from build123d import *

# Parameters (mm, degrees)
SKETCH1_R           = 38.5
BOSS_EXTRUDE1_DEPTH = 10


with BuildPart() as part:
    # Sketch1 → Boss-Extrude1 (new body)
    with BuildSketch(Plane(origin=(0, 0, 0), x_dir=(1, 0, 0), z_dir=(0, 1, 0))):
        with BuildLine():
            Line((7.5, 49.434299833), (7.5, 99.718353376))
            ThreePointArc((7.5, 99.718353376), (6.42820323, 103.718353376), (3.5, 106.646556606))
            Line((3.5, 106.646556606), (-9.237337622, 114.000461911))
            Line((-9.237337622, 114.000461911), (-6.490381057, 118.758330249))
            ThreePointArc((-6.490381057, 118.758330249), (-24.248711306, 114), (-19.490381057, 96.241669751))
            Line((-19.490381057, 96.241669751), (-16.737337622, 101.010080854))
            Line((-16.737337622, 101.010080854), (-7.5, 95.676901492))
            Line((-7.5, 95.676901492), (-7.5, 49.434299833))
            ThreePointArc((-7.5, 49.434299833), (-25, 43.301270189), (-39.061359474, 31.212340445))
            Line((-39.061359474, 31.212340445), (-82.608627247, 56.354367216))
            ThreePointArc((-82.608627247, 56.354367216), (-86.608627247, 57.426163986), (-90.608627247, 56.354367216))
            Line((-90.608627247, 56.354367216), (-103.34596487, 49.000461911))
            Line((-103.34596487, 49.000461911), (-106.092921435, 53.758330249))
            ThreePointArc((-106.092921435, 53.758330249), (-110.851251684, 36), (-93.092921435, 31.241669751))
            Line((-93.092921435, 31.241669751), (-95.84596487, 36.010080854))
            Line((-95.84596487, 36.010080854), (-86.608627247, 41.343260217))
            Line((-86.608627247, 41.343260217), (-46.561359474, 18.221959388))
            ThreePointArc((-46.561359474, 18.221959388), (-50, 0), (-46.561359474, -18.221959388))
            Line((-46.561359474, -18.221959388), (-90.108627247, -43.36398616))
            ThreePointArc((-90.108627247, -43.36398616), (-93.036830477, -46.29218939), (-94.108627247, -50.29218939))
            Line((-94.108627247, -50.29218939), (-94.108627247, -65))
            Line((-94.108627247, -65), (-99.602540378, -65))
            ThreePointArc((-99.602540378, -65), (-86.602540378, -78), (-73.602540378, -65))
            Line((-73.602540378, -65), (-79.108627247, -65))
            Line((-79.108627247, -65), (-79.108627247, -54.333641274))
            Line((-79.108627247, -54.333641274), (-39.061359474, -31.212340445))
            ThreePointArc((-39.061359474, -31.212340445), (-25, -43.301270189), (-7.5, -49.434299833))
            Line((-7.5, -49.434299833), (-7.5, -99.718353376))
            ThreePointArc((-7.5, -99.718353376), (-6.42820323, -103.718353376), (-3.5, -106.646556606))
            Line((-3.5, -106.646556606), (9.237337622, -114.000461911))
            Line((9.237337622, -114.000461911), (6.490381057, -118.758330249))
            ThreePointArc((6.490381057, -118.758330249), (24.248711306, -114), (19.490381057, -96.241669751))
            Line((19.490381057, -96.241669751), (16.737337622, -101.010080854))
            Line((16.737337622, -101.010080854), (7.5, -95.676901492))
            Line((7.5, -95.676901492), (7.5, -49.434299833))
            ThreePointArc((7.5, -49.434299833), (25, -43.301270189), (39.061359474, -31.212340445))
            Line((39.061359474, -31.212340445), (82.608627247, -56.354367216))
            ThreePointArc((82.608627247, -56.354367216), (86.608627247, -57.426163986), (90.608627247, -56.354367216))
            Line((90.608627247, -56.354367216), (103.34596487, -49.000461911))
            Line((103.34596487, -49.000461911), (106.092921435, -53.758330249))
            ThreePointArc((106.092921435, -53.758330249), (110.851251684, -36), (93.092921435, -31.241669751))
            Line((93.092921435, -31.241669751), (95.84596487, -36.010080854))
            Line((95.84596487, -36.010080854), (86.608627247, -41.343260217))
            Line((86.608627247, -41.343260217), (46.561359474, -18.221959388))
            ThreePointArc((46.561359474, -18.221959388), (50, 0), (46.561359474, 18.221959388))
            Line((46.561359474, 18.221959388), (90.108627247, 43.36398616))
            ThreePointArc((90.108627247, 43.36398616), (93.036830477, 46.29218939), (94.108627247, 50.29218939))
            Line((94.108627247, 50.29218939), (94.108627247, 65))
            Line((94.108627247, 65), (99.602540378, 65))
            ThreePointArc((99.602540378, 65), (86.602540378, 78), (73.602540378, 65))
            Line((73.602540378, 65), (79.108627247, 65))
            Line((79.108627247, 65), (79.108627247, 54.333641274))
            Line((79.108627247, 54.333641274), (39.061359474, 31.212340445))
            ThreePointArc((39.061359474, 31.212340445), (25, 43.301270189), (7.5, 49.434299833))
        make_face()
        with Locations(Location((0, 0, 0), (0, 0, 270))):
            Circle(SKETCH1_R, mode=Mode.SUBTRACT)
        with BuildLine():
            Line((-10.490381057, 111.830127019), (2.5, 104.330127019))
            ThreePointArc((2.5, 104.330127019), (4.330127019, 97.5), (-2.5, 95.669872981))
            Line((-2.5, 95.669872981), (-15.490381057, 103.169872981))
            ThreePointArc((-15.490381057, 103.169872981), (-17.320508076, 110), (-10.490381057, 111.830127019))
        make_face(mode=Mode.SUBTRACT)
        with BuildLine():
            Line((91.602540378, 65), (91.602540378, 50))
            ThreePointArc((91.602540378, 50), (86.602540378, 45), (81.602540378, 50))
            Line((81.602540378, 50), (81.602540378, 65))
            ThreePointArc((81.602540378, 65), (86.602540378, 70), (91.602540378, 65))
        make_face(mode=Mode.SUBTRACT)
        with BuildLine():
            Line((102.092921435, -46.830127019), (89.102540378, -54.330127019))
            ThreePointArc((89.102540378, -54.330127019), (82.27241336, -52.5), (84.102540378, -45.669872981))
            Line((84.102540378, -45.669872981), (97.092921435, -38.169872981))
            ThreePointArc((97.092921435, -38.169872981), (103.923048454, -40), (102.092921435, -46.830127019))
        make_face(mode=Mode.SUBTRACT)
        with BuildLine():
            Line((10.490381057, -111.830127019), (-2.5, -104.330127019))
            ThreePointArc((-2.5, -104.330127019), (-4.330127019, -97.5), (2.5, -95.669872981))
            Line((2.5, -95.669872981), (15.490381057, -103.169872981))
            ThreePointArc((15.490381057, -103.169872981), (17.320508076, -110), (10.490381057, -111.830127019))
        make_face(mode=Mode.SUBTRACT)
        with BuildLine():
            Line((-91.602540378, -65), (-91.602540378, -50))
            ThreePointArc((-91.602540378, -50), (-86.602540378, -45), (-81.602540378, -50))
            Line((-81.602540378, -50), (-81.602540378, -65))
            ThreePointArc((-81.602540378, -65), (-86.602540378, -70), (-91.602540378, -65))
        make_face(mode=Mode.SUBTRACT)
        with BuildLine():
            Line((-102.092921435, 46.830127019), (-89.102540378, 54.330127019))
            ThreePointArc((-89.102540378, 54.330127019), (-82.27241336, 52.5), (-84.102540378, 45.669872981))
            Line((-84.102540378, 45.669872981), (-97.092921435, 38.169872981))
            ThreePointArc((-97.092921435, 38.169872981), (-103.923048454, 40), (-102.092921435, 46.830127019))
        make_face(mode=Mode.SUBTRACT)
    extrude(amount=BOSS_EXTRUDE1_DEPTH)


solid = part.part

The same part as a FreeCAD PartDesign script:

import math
import FreeCAD as App
import Part
import Sketcher

V = App.Vector
Q = App.Units.Quantity

doc = App.newDocument("Part")
body = doc.addObject("PartDesign::Body", "Body")

# Sketch on XZ plane
sketch1 = doc.addObject("Sketcher::SketchObject", "Sketch")
body.addObject(sketch1)
sketch1.AttachmentSupport = (doc.XZ_Plane, [""])
sketch1.MapMode = "FlatFace"
sketch1.addGeometry([
    Part.LineSegment(V(7.5, -49.4343, 0), V(7.5, -99.718353, 0)),  # 0
    Part.ArcOfCircle(Part.Circle(V(-0.5, -99.718353, 0), V(0, 0, 1), 8), math.radians(-60), math.radians(0)),  # 1
    Part.LineSegment(V(3.5, -106.646557, 0), V(-9.237338, -114.000462, 0)),  # 2
    Part.LineSegment(V(-9.237338, -114.000462, 0), V(-6.490381, -118.75833, 0)),  # 3
    Part.ArcOfCircle(Part.Circle(V(-12.990381, -107.5, 0), V(0, 0, 1), 13), math.radians(120), math.radians(300)),  # 4
    Part.LineSegment(V(-19.490381, -96.24167, 0), V(-16.737338, -101.010081, 0)),  # 5
    Part.LineSegment(V(-16.737338, -101.010081, 0), V(-7.5, -95.676901, 0)),  # 6
    Part.LineSegment(V(-7.5, -95.676901, 0), V(-7.5, -49.4343, 0)),  # 7
    Part.ArcOfCircle(Part.Circle(V(0, 0, 0), V(0, 0, 1), 50), math.radians(-141.373073), math.radians(-98.626927)),  # 8
    Part.LineSegment(V(-39.061359, -31.21234, 0), V(-82.608627, -56.354367, 0)),  # 9
    Part.ArcOfCircle(Part.Circle(V(-86.608627, -49.426164, 0), V(0, 0, 1), 8), math.radians(-120), math.radians(-60)),  # 10
    Part.LineSegment(V(-90.608627, -56.354367, 0), V(-103.345965, -49.000462, 0)),  # 11
    Part.LineSegment(V(-103.345965, -49.000462, 0), V(-106.092921, -53.75833, 0)),  # 12
    Part.ArcOfCircle(Part.Circle(V(-99.592921, -42.5, 0), V(0, 0, 1), 13), math.radians(60), math.radians(240)),  # 13
    Part.LineSegment(V(-93.092921, -31.24167, 0), V(-95.845965, -36.010081, 0)),  # 14
    Part.LineSegment(V(-95.845965, -36.010081, 0), V(-86.608627, -41.34326, 0)),  # 15
    Part.LineSegment(V(-86.608627, -41.34326, 0), V(-46.561359, -18.221959, 0)),  # 16
    Part.ArcOfCircle(Part.Circle(V(0, 0, 0), V(0, 0, 1), 50), math.radians(158.626927), math.radians(201.373073)),  # 17
    Part.LineSegment(V(-46.561359, 18.221959, 0), V(-90.108627, 43.363986, 0)),  # 18
    Part.ArcOfCircle(Part.Circle(V(-86.108627, 50.292189, 0), V(0, 0, 1), 8), math.radians(-180), math.radians(-120)),  # 19
    Part.LineSegment(V(-94.108627, 50.292189, 0), V(-94.108627, 65, 0)),  # 20
    Part.LineSegment(V(-94.108627, 65, 0), V(-99.60254, 65, 0)),  # 21
    Part.ArcOfCircle(Part.Circle(V(-86.60254, 65, 0), V(0, 0, 1), 13), math.radians(0), math.radians(180)),  # 22
    Part.LineSegment(V(-73.60254, 65, 0), V(-79.108627, 65, 0)),  # 23
    Part.LineSegment(V(-79.108627, 65, 0), V(-79.108627, 54.333641, 0)),  # 24
    Part.LineSegment(V(-79.108627, 54.333641, 0), V(-39.061359, 31.21234, 0)),  # 25
    Part.ArcOfCircle(Part.Circle(V(0, 0, 0), V(0, 0, 1), 50), math.radians(98.626927), math.radians(141.373073)),  # 26
    Part.LineSegment(V(-7.5, 49.4343, 0), V(-7.5, 99.718353, 0)),  # 27
    Part.ArcOfCircle(Part.Circle(V(0.5, 99.718353, 0), V(0, 0, 1), 8), math.radians(120), math.radians(180)),  # 28
    Part.LineSegment(V(-3.5, 106.646557, 0), V(9.237338, 114.000462, 0)),  # 29
    Part.LineSegment(V(9.237338, 114.000462, 0), V(6.490381, 118.75833, 0)),  # 30
    Part.ArcOfCircle(Part.Circle(V(12.990381, 107.5, 0), V(0, 0, 1), 13), math.radians(-60), math.radians(120)),  # 31
    Part.LineSegment(V(19.490381, 96.24167, 0), V(16.737338, 101.010081, 0)),  # 32
    Part.LineSegment(V(16.737338, 101.010081, 0), V(7.5, 95.676901, 0)),  # 33
    Part.LineSegment(V(7.5, 95.676901, 0), V(7.5, 49.4343, 0)),  # 34
    Part.ArcOfCircle(Part.Circle(V(0, 0, 0), V(0, 0, 1), 50), math.radians(38.626927), math.radians(81.373073)),  # 35
    Part.LineSegment(V(39.061359, 31.21234, 0), V(82.608627, 56.354367, 0)),  # 36
    Part.ArcOfCircle(Part.Circle(V(86.608627, 49.426164, 0), V(0, 0, 1), 8), math.radians(60), math.radians(120)),  # 37
    Part.LineSegment(V(90.608627, 56.354367, 0), V(103.345965, 49.000462, 0)),  # 38
    Part.LineSegment(V(103.345965, 49.000462, 0), V(106.092921, 53.75833, 0)),  # 39
    Part.ArcOfCircle(Part.Circle(V(99.592921, 42.5, 0), V(0, 0, 1), 13), math.radians(-120), math.radians(60)),  # 40
    Part.LineSegment(V(93.092921, 31.24167, 0), V(95.845965, 36.010081, 0)),  # 41
    Part.LineSegment(V(95.845965, 36.010081, 0), V(86.608627, 41.34326, 0)),  # 42
    Part.LineSegment(V(86.608627, 41.34326, 0), V(46.561359, 18.221959, 0)),  # 43
    Part.ArcOfCircle(Part.Circle(V(0, 0, 0), V(0, 0, 1), 50), math.radians(-21.373073), math.radians(21.373073)),  # 44
    Part.LineSegment(V(46.561359, -18.221959, 0), V(90.108627, -43.363986, 0)),  # 45
    Part.ArcOfCircle(Part.Circle(V(86.108627, -50.292189, 0), V(0, 0, 1), 8), math.radians(0), math.radians(60)),  # 46
    Part.LineSegment(V(94.108627, -50.292189, 0), V(94.108627, -65, 0)),  # 47
    Part.LineSegment(V(94.108627, -65, 0), V(99.60254, -65, 0)),  # 48
    Part.ArcOfCircle(Part.Circle(V(86.60254, -65, 0), V(0, 0, 1), 13), math.radians(180), math.radians(360)),  # 49
    Part.LineSegment(V(73.60254, -65, 0), V(79.108627, -65, 0)),  # 50
    Part.LineSegment(V(79.108627, -65, 0), V(79.108627, -54.333641, 0)),  # 51
    Part.LineSegment(V(79.108627, -54.333641, 0), V(39.061359, -31.21234, 0)),  # 52
    Part.ArcOfCircle(Part.Circle(V(0, 0, 0), V(0, 0, 1), 50), math.radians(-81.373073), math.radians(-38.626927)),  # 53
    Part.ArcOfCircle(Part.Circle(V(-86.60254, 65, 0), V(0, 0, 1), 5), math.radians(0), math.radians(180)),  # 54
    Part.LineSegment(V(-91.60254, 65, 0), V(-91.60254, 50, 0)),  # 55
    Part.ArcOfCircle(Part.Circle(V(-86.60254, 50, 0), V(0, 0, 1), 5), math.radians(180), math.radians(360)),  # 56
    Part.LineSegment(V(-81.60254, 50, 0), V(-81.60254, 65, 0)),  # 57
    Part.ArcOfCircle(Part.Circle(V(12.990381, 107.5, 0), V(0, 0, 1), 5), math.radians(-60), math.radians(120)),  # 58
    Part.LineSegment(V(10.490381, 111.830127, 0), V(-2.5, 104.330127, 0)),  # 59
    Part.ArcOfCircle(Part.Circle(V(0, 100, 0), V(0, 0, 1), 5), math.radians(120), math.radians(300)),  # 60
    Part.LineSegment(V(2.5, 95.669873, 0), V(15.490381, 103.169873, 0)),  # 61
    Part.ArcOfCircle(Part.Circle(V(99.592921, 42.5, 0), V(0, 0, 1), 5), math.radians(-120), math.radians(60)),  # 62
    Part.LineSegment(V(102.092921, 46.830127, 0), V(89.10254, 54.330127, 0)),  # 63
    Part.ArcOfCircle(Part.Circle(V(86.60254, 50, 0), V(0, 0, 1), 5), math.radians(60), math.radians(240)),  # 64
    Part.LineSegment(V(84.10254, 45.669873, 0), V(97.092921, 38.169873, 0)),  # 65
    Part.ArcOfCircle(Part.Circle(V(-99.592921, -42.5, 0), V(0, 0, 1), 5), math.radians(60), math.radians(240)),  # 66
    Part.LineSegment(V(-102.092921, -46.830127, 0), V(-89.10254, -54.330127, 0)),  # 67
    Part.ArcOfCircle(Part.Circle(V(-86.60254, -50, 0), V(0, 0, 1), 5), math.radians(-120), math.radians(60)),  # 68
    Part.LineSegment(V(-84.10254, -45.669873, 0), V(-97.092921, -38.169873, 0)),  # 69
    Part.ArcOfCircle(Part.Circle(V(-12.990381, -107.5, 0), V(0, 0, 1), 5), math.radians(120), math.radians(300)),  # 70
    Part.LineSegment(V(-10.490381, -111.830127, 0), V(2.5, -104.330127, 0)),  # 71
    Part.ArcOfCircle(Part.Circle(V(0, -100, 0), V(0, 0, 1), 5), math.radians(-60), math.radians(120)),  # 72
    Part.LineSegment(V(-2.5, -95.669873, 0), V(-15.490381, -103.169873, 0)),  # 73
    Part.Circle(V(0, 0, 0), V(0, 0, 1), 38.5),  # 74
    Part.ArcOfCircle(Part.Circle(V(86.60254, -65, 0), V(0, 0, 1), 5), math.radians(180), math.radians(360)),  # 75
    Part.LineSegment(V(91.60254, -65, 0), V(91.60254, -50, 0)),  # 76
    Part.ArcOfCircle(Part.Circle(V(86.60254, -50, 0), V(0, 0, 1), 5), math.radians(0), math.radians(180)),  # 77
    Part.LineSegment(V(81.60254, -50, 0), V(81.60254, -65, 0)),  # 78
], False)
sketch1.addConstraint([
    Sketcher.Constraint("Tangent", 0, 2, 1, 2),
    Sketcher.Constraint("Tangent", 1, 1, 2, 1),
    Sketcher.Constraint("Coincident", 2, 2, 3, 1),
    Sketcher.Constraint("Coincident", 3, 2, 4, 2),
    Sketcher.Constraint("Coincident", 4, 1, 5, 1),
    Sketcher.Constraint("Coincident", 5, 2, 6, 1),
    Sketcher.Constraint("Coincident", 6, 2, 7, 1),
    Sketcher.Constraint("Coincident", 7, 2, 8, 2),
    Sketcher.Constraint("Coincident", 8, 1, 9, 1),
    Sketcher.Constraint("Tangent", 9, 2, 10, 2),
    Sketcher.Constraint("Tangent", 10, 1, 11, 1),
    Sketcher.Constraint("Coincident", 11, 2, 12, 1),
    Sketcher.Constraint("Coincident", 12, 2, 13, 2),
    Sketcher.Constraint("Coincident", 13, 1, 14, 1),
    Sketcher.Constraint("Coincident", 14, 2, 15, 1),
    Sketcher.Constraint("Coincident", 15, 2, 16, 1),
    Sketcher.Constraint("Coincident", 16, 2, 17, 2),
    Sketcher.Constraint("Coincident", 17, 1, 18, 1),
    Sketcher.Constraint("Tangent", 18, 2, 19, 2),
    Sketcher.Constraint("Tangent", 19, 1, 20, 1),
    Sketcher.Constraint("Coincident", 20, 2, 21, 1),
    Sketcher.Constraint("Coincident", 21, 2, 22, 2),
    Sketcher.Constraint("Coincident", 22, 1, 23, 1),
    Sketcher.Constraint("Coincident", 23, 2, 24, 1),
    Sketcher.Constraint("Coincident", 24, 2, 25, 1),
    Sketcher.Constraint("Coincident", 25, 2, 26, 2),
    Sketcher.Constraint("Coincident", 26, 1, 27, 1),
    Sketcher.Constraint("Tangent", 27, 2, 28, 2),
    Sketcher.Constraint("Tangent", 28, 1, 29, 1),
    Sketcher.Constraint("Coincident", 29, 2, 30, 1),
    Sketcher.Constraint("Coincident", 30, 2, 31, 2),
    Sketcher.Constraint("Coincident", 31, 1, 32, 1),
    Sketcher.Constraint("Coincident", 32, 2, 33, 1),
    Sketcher.Constraint("Coincident", 33, 2, 34, 1),
    Sketcher.Constraint("Coincident", 34, 2, 35, 2),
    Sketcher.Constraint("Coincident", 35, 1, 36, 1),
    Sketcher.Constraint("Tangent", 36, 2, 37, 2),
    Sketcher.Constraint("Tangent", 37, 1, 38, 1),
    Sketcher.Constraint("Coincident", 38, 2, 39, 1),
    Sketcher.Constraint("Coincident", 39, 2, 40, 2),
    Sketcher.Constraint("Coincident", 40, 1, 41, 1),
    Sketcher.Constraint("Coincident", 41, 2, 42, 1),
    Sketcher.Constraint("Coincident", 42, 2, 43, 1),
    Sketcher.Constraint("Coincident", 43, 2, 44, 2),
    Sketcher.Constraint("Coincident", 44, 1, 45, 1),
    Sketcher.Constraint("Tangent", 45, 2, 46, 2),
    Sketcher.Constraint("Tangent", 46, 1, 47, 1),
    Sketcher.Constraint("Coincident", 47, 2, 48, 1),
    Sketcher.Constraint("Coincident", 48, 2, 49, 2),
    Sketcher.Constraint("Coincident", 49, 1, 50, 1),
    Sketcher.Constraint("Coincident", 50, 2, 51, 1),
    Sketcher.Constraint("Coincident", 51, 2, 52, 1),
    Sketcher.Constraint("Coincident", 52, 2, 53, 2),
    Sketcher.Constraint("Coincident", 53, 1, 0, 1),
    Sketcher.Constraint("Tangent", 54, 2, 55, 1),
    Sketcher.Constraint("Tangent", 55, 2, 56, 1),
    Sketcher.Constraint("Tangent", 56, 2, 57, 1),
    Sketcher.Constraint("Tangent", 57, 2, 54, 1),
    Sketcher.Constraint("Tangent", 58, 2, 59, 1),
    Sketcher.Constraint("Tangent", 59, 2, 60, 1),
    Sketcher.Constraint("Tangent", 60, 2, 61, 1),
    Sketcher.Constraint("Tangent", 61, 2, 58, 1),
    Sketcher.Constraint("Tangent", 62, 2, 63, 1),
    Sketcher.Constraint("Tangent", 63, 2, 64, 1),
    Sketcher.Constraint("Tangent", 64, 2, 65, 1),
    Sketcher.Constraint("Tangent", 65, 2, 62, 1),
    Sketcher.Constraint("Tangent", 66, 2, 67, 1),
    Sketcher.Constraint("Tangent", 67, 2, 68, 1),
    Sketcher.Constraint("Tangent", 68, 2, 69, 1),
    Sketcher.Constraint("Tangent", 69, 2, 66, 1),
    Sketcher.Constraint("Tangent", 70, 2, 71, 1),
    Sketcher.Constraint("Tangent", 71, 2, 72, 1),
    Sketcher.Constraint("Tangent", 72, 2, 73, 1),
    Sketcher.Constraint("Tangent", 73, 2, 70, 1),
    Sketcher.Constraint("Tangent", 75, 2, 76, 1),
    Sketcher.Constraint("Tangent", 76, 2, 77, 1),
    Sketcher.Constraint("Tangent", 77, 2, 78, 1),
    Sketcher.Constraint("Tangent", 78, 2, 75, 1),
    Sketcher.Constraint("Vertical", 0),
    Sketcher.Constraint("Vertical", 7),
    Sketcher.Constraint("Vertical", 20),
    Sketcher.Constraint("Horizontal", 21),
    Sketcher.Constraint("Horizontal", 23),
    Sketcher.Constraint("Vertical", 24),
    Sketcher.Constraint("Vertical", 27),
    Sketcher.Constraint("Vertical", 34),
    Sketcher.Constraint("Vertical", 47),
    Sketcher.Constraint("Horizontal", 48),
    Sketcher.Constraint("Horizontal", 50),
    Sketcher.Constraint("Vertical", 51),
    Sketcher.Constraint("Vertical", 55),
    Sketcher.Constraint("Vertical", 57),
    Sketcher.Constraint("Vertical", 76),
    Sketcher.Constraint("Vertical", 78),
    Sketcher.Constraint("Coincident", 8, 3, -1, 1),
    Sketcher.Constraint("Coincident", 17, 3, -1, 1),
    Sketcher.Constraint("Coincident", 26, 3, -1, 1),
    Sketcher.Constraint("Coincident", 35, 3, -1, 1),
    Sketcher.Constraint("Coincident", 44, 3, -1, 1),
    Sketcher.Constraint("Coincident", 53, 3, -1, 1),
    Sketcher.Constraint("Coincident", 74, 3, -1, 1),
    Sketcher.Constraint("Coincident", 54, 3, 22, 3),
    Sketcher.Constraint("Coincident", 58, 3, 31, 3),
    Sketcher.Constraint("Coincident", 62, 3, 40, 3),
    Sketcher.Constraint("Coincident", 66, 3, 13, 3),
    Sketcher.Constraint("Coincident", 70, 3, 4, 3),
    Sketcher.Constraint("Coincident", 75, 3, 49, 3),
    Sketcher.Constraint("Equal", 1, 10),
    Sketcher.Constraint("Equal", 4, 13),
    Sketcher.Constraint("Equal", 8, 17),
    Sketcher.Constraint("Equal", 10, 19),
    Sketcher.Constraint("Equal", 13, 22),
    Sketcher.Constraint("Equal", 17, 26),
    Sketcher.Constraint("Equal", 19, 28),
    Sketcher.Constraint("Equal", 22, 31),
    Sketcher.Constraint("Equal", 26, 35),
    Sketcher.Constraint("Equal", 28, 37),
    Sketcher.Constraint("Equal", 31, 40),
    Sketcher.Constraint("Equal", 35, 44),
    Sketcher.Constraint("Equal", 37, 46),
    Sketcher.Constraint("Equal", 40, 49),
    Sketcher.Constraint("Equal", 44, 53),
    Sketcher.Constraint("Equal", 56, 58),
    Sketcher.Constraint("Equal", 58, 60),
    Sketcher.Constraint("Equal", 60, 62),
    Sketcher.Constraint("Equal", 62, 64),
    Sketcher.Constraint("Equal", 64, 66),
    Sketcher.Constraint("Equal", 66, 68),
    Sketcher.Constraint("Equal", 68, 70),
    Sketcher.Constraint("Equal", 70, 72),
    Sketcher.Constraint("Equal", 72, 75),
    Sketcher.Constraint("Symmetric", 1, 3, 28, 3, -1, 1),
    Sketcher.Constraint("Symmetric", 4, 3, 31, 3, -1, 1),
    Sketcher.Constraint("Symmetric", 10, 3, 37, 3, -1, 1),
    Sketcher.Constraint("Symmetric", 13, 3, 40, 3, -1, 1),
    Sketcher.Constraint("Symmetric", 19, 3, 46, 3, -1, 1),
    Sketcher.Constraint("Symmetric", 22, 3, 49, 3, -1, 1),
    Sketcher.Constraint("Symmetric", 64, 3, 68, 3, -1, 1),
    Sketcher.Constraint("Symmetric", 60, 3, 72, 3, -1, 1),
    Sketcher.Constraint("Symmetric", 2, 2, 29, 2, -1, 1),
    Sketcher.Constraint("Symmetric", 5, 2, 32, 2, -1, 1),
    Sketcher.Constraint("Symmetric", 6, 2, 33, 2, -1, 1),
    Sketcher.Constraint("Symmetric", 11, 2, 38, 2, -1, 1),
    Sketcher.Constraint("Symmetric", 14, 2, 41, 2, -1, 1),
    Sketcher.Constraint("Symmetric", 15, 2, 42, 2, -1, 1),
    Sketcher.Constraint("Symmetric", 23, 2, 50, 2, -1, 1),
    Sketcher.Constraint("Symmetric", 56, 3, 64, 3, -2),
    Sketcher.Constraint("PointOnObject", 60, 3, -2),
    Sketcher.Constraint("Perpendicular", 2, 3),
    Sketcher.Constraint("Parallel", 3, 5),
    Sketcher.Constraint("Perpendicular", 5, 6),
    Sketcher.Constraint("Parallel", 6, 9),
    Sketcher.Constraint("Perpendicular", 11, 12),
    Sketcher.Constraint("Parallel", 12, 14),
    Sketcher.Constraint("Perpendicular", 14, 15),
    Sketcher.Constraint("Parallel", 9, 16),
    Sketcher.Constraint("Parallel", 15, 18),
    Sketcher.Constraint("Parallel", 18, 25),
    Sketcher.Constraint("Perpendicular", 29, 30),
    Sketcher.Constraint("Parallel", 30, 32),
    Sketcher.Constraint("Parallel", 33, 36),
    Sketcher.Constraint("Perpendicular", 38, 39),
    Sketcher.Constraint("Parallel", 39, 41),
    Sketcher.Constraint("Parallel", 36, 43),
    Sketcher.Constraint("Parallel", 42, 45),
    Sketcher.Constraint("Parallel", 45, 52),
    Sketcher.Constraint("Parallel", 43, 59),
    Sketcher.Constraint("Parallel", 52, 63),
    Sketcher.Constraint("Horizontal", 68, 3, 77, 3),
    Sketcher.Constraint("Horizontal", 9, 2, 10, 1),
    Sketcher.Constraint("Horizontal", 54, 3, 20, 2),
    Sketcher.Constraint("Horizontal", 21, 2, 22, 1),
    Sketcher.Constraint("Horizontal", 26, 1, 34, 2),
    Sketcher.Constraint("Horizontal", 25, 2, 35, 1),
    Sketcher.Constraint("Horizontal", 17, 1, 43, 2),
    Sketcher.Constraint("Horizontal", 75, 3, 47, 2),
    Sketcher.Constraint("Horizontal", 8, 1, 52, 2),
    Sketcher.Constraint("Vertical", 10, 3, 15, 2),
    Sketcher.Constraint("Equal", 2, 11),
    Sketcher.Constraint("Equal", 3, 12),
    Sketcher.Constraint("Equal", 5, 14),
    Sketcher.Constraint("Equal", 6, 15),
    Sketcher.Constraint("Equal", 9, 18),
    Sketcher.Constraint("Equal", 16, 25),
    Sketcher.Constraint("Equal", 61, 63),
    Sketcher.Constraint("Diameter", 74, Q("77 mm")),
    Sketcher.Constraint("Radius", 1, Q("8 mm")),
    Sketcher.Constraint("Radius", 4, Q("13 mm")),
    Sketcher.Constraint("Radius", 8, Q("50 mm")),
    Sketcher.Constraint("Radius", 54, Q("5 mm")),
    Sketcher.Constraint("DistanceY", 55, 2, 55, 1, Q("15 mm")),
    Sketcher.Constraint("Angle", 2, Q("-150 deg")),
    Sketcher.Constraint("Distance", 59, Q("15 mm")),
    Sketcher.Constraint("DistanceY", -1, 1, 22, 3, Q("65 mm")),
    Sketcher.Constraint("DistanceY", -1, 1, 60, 3, Q("100 mm")),
    Sketcher.Constraint("DistanceX", 1, 3, -1, 1, Q("0.5 mm")),
    Sketcher.Constraint("DistanceY", 7, 1, 7, 2, Q("46.242602 mm")),
    Sketcher.Constraint("Distance", 16, Q("46.242602 mm")),
    Sketcher.Constraint("DistanceY", 20, 1, 20, 2, Q("14.707811 mm")),
    Sketcher.Constraint("DistanceY", 24, 2, 24, 1, Q("10.666359 mm")),
    Sketcher.Constraint("Distance", 2, Q("14.707811 mm")),
    Sketcher.Constraint("Distance", 6, Q("10.666359 mm")),
])
pad1 = doc.addObject("PartDesign::Pad", "Pad")
body.addObject(pad1)
pad1.Profile = sketch1
pad1.Length = 10
pad1.Reversed = True

doc.recompute()
